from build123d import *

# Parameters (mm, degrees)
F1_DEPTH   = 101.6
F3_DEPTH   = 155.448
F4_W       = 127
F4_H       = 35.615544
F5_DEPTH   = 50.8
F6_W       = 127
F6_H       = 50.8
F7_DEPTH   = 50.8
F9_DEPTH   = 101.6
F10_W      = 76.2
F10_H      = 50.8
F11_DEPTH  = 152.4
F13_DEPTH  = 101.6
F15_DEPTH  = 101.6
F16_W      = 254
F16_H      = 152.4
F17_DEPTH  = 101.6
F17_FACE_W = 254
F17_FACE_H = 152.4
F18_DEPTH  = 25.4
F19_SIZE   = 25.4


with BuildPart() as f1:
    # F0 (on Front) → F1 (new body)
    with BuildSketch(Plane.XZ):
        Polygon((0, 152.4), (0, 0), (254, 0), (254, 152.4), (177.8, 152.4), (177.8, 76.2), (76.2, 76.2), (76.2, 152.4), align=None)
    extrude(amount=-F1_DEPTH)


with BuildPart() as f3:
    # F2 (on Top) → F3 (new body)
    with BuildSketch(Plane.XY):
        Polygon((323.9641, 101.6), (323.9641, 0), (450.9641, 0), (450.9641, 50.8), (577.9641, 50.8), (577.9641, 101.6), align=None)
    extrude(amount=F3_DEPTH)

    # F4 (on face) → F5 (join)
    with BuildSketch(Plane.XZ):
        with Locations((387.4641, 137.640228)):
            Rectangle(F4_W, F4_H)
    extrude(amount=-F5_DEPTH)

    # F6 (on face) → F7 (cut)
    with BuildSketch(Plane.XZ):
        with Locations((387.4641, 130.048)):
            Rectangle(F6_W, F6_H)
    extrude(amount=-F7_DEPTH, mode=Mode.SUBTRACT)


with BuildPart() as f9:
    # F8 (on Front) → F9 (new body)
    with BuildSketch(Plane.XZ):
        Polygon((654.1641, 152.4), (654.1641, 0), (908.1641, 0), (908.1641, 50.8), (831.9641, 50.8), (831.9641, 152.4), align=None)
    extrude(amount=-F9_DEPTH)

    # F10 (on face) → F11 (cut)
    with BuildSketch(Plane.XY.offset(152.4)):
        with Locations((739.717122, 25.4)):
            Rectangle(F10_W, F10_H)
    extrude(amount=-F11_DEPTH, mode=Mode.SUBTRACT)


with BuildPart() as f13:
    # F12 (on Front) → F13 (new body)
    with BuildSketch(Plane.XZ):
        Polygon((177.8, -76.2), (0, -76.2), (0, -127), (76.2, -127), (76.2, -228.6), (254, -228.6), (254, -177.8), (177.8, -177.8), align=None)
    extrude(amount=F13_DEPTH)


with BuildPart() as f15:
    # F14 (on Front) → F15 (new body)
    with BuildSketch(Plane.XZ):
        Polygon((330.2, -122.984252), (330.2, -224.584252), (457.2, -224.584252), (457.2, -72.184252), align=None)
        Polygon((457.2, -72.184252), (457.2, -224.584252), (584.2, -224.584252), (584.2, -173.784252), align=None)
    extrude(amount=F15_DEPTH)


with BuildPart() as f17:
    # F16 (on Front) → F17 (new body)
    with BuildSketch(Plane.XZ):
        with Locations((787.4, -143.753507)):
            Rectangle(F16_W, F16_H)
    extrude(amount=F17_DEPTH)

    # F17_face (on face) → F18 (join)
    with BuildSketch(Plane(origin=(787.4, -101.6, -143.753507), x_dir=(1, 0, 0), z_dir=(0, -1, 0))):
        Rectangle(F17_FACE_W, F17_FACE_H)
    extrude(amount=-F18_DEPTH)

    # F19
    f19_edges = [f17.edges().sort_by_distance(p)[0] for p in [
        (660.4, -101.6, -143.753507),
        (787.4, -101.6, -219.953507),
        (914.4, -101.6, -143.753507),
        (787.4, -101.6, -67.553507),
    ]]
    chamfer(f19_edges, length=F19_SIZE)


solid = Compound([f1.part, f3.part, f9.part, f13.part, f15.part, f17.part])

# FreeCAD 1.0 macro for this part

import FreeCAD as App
import Part
import Sketcher
Q = App.Units.Quantity


def edges_at(feature, points):
    """Names of the edges that pass closest to the given points."""
    edges = feature.Shape.Edges
    near = lambda p: min(range(len(edges)), key=lambda i: edges[i].distToShape(Part.Vertex(*p))[0])
    return sorted({f"Edge{near(p) + 1}" for p in points})

doc = App.newDocument("Part")
body = doc.addObject("PartDesign::Body", "Body")

sketch1 = body.newObject("Sketcher::SketchObject", "Sketch")
sketch1.AttachmentSupport = (doc.getObject("XZ_Plane"), [""])
sketch1.MapMode = "FlatFace"
sketch1.addGeometry([
    Part.LineSegment(App.Vector(0, 152, 0), App.Vector(0, 0, 0)),
    Part.LineSegment(App.Vector(0, 0, 0), App.Vector(254, 0, 0)),
    Part.LineSegment(App.Vector(254, 0, 0), App.Vector(254, 152, 0)),
    Part.LineSegment(App.Vector(254, 152, 0), App.Vector(178, 152, 0)),
    Part.LineSegment(App.Vector(178, 152, 0), App.Vector(178, 76, 0)),
    Part.LineSegment(App.Vector(178, 76, 0), App.Vector(76, 76, 0)),
    Part.LineSegment(App.Vector(76, 76, 0), App.Vector(76, 152, 0)),
    Part.LineSegment(App.Vector(76, 152, 0), App.Vector(0, 152, 0)),
], False)
sketch1.addConstraint([
    Sketcher.Constraint("Coincident", 0, 2, 1, 1),
    Sketcher.Constraint("Coincident", 1, 2, 2, 1),
    Sketcher.Constraint("Coincident", 2, 2, 3, 1),
    Sketcher.Constraint("Coincident", 3, 2, 4, 1),
    Sketcher.Constraint("Coincident", 4, 2, 5, 1),
    Sketcher.Constraint("Coincident", 5, 2, 6, 1),
    Sketcher.Constraint("Coincident", 6, 2, 7, 1),
    Sketcher.Constraint("Coincident", 7, 2, 0, 1),
    Sketcher.Constraint("Vertical", 0),
    Sketcher.Constraint("Horizontal", 1),
    Sketcher.Constraint("Vertical", 2),
    Sketcher.Constraint("Horizontal", 3),
    Sketcher.Constraint("Vertical", 4),
    Sketcher.Constraint("Horizontal", 5),
    Sketcher.Constraint("Vertical", 6),
    Sketcher.Constraint("Horizontal", 7),
    Sketcher.Constraint("Coincident", 0, 2, -1, 1),
    Sketcher.Constraint("Horizontal", 3, 2, 6, 2),
    Sketcher.Constraint("Equal", 3, 7),
    Sketcher.Constraint("Equal", 7, 4),
    Sketcher.Constraint("DistanceX", 1, 1, 1, 2, Q("10 in")),
    Sketcher.Constraint("DistanceX", 3, 2, 3, 1, Q("3 in")),
    Sketcher.Constraint("DistanceY", 0, 2, 0, 1, Q("6 in")),
])
pad1 = body.newObject("PartDesign::Pad", "Pad")
pad1.Profile = sketch1
pad1.Length = Q("4 in")
pad1.Reversed = True
body2 = doc.addObject("PartDesign::Body", "Body001")

sketch2 = body2.newObject("Sketcher::SketchObject", "Sketch001")
sketch2.AttachmentSupport = (doc.getObject("XY_Plane001"), [""])
sketch2.MapMode = "FlatFace"
sketch2.addGeometry([
    Part.LineSegment(App.Vector(324, 102, 0), App.Vector(324, 0, 0)),
    Part.LineSegment(App.Vector(324, 0, 0), App.Vector(451, 0, 0)),
    Part.LineSegment(App.Vector(451, 0, 0), App.Vector(451, 51, 0)),
    Part.LineSegment(App.Vector(451, 51, 0), App.Vector(578, 51, 0)),
    Part.LineSegment(App.Vector(578, 51, 0), App.Vector(578, 102, 0)),
    Part.LineSegment(App.Vector(578, 102, 0), App.Vector(324, 102, 0)),
], False)
sketch2.addConstraint([
    Sketcher.Constraint("Coincident", 0, 2, 1, 1),
    Sketcher.Constraint("Coincident", 1, 2, 2, 1),
    Sketcher.Constraint("Coincident", 2, 2, 3, 1),
    Sketcher.Constraint("Coincident", 3, 2, 4, 1),
    Sketcher.Constraint("Coincident", 4, 2, 5, 1),
    Sketcher.Constraint("Coincident", 5, 2, 0, 1),
    Sketcher.Constraint("Vertical", 0),
    Sketcher.Constraint("Horizontal", 1),
    Sketcher.Constraint("Vertical", 2),
    Sketcher.Constraint("Horizontal", 3),
    Sketcher.Constraint("Vertical", 4),
    Sketcher.Constraint("Horizontal", 5),
    Sketcher.Constraint("PointOnObject", 0, 2, -1),
    Sketcher.Constraint("Equal", 1, 3),
    Sketcher.Constraint("Equal", 2, 4),
    Sketcher.Constraint("DistanceX", 1, 1, 1, 2, Q("5 in")),
    Sketcher.Constraint("DistanceY", 0, 2, 0, 1, Q("4 in")),
    Sketcher.Constraint("DistanceX", -1, 1, 0, 2, Q("323.9641 mm")),
])
pad2 = body2.newObject("PartDesign::Pad", "Pad001")
pad2.Profile = sketch2
pad2.Length = Q("6.12 in")

sketch3 = body2.newObject("Sketcher::SketchObject", "Sketch002")
sketch3.AttachmentSupport = (doc.getObject("XZ_Plane001"), [""])
sketch3.MapMode = "FlatFace"
sketch3.addGeometry([
    Part.LineSegment(App.Vector(324, 155, 0), App.Vector(324, 120, 0)),
    Part.LineSegment(App.Vector(324, 120, 0), App.Vector(451, 120, 0)),
    Part.LineSegment(App.Vector(451, 120, 0), App.Vector(451, 155, 0)),
    Part.LineSegment(App.Vector(451, 155, 0), App.Vector(324, 155, 0)),
], False)
sketch3.addConstraint([
    Sketcher.Constraint("Coincident", 0, 2, 1, 1),
    Sketcher.Constraint("Coincident", 1, 2, 2, 1),
    Sketcher.Constraint("Coincident", 2, 2, 3, 1),
    Sketcher.Constraint("Coincident", 3, 2, 0, 1),
    Sketcher.Constraint("Vertical", 0),
    Sketcher.Constraint("Horizontal", 1),
    Sketcher.Constraint("Vertical", 2),
    Sketcher.Constraint("Horizontal", 3),
    Sketcher.Constraint("DistanceX", 1, 1, 1, 2, Q("5 in")),
    Sketcher.Constraint("DistanceY", -1, 1, 2, 2, Q("6.12 in")),
    Sketcher.Constraint("DistanceX", -1, 1, 0, 2, Q("323.9641 mm")),
    Sketcher.Constraint("DistanceY", 0, 2, 0, 1, Q("35.615544 mm")),
])
pad3 = body2.newObject("PartDesign::Pad", "Pad002")
pad3.Profile = sketch3
pad3.Length = Q("2 in")
pad3.Reversed = True

sketch4 = body2.newObject("Sketcher::SketchObject", "Sketch003")
sketch4.AttachmentSupport = (doc.getObject("XZ_Plane001"), [""])
sketch4.MapMode = "FlatFace"
sketch4.addGeometry([
    Part.LineSegment(App.Vector(324, 155, 0), App.Vector(324, 105, 0)),
    Part.LineSegment(App.Vector(324, 105, 0), App.Vector(451, 105, 0)),
    Part.LineSegment(App.Vector(451, 105, 0), App.Vector(451, 155, 0)),
    Part.LineSegment(App.Vector(451, 155, 0), App.Vector(324, 155, 0)),
], False)
sketch4.addConstraint([
    Sketcher.Constraint("Coincident", 0, 2, 1, 1),
    Sketcher.Constraint("Coincident", 1, 2, 2, 1),
    Sketcher.Constraint("Coincident", 2, 2, 3, 1),
    Sketcher.Constraint("Coincident", 3, 2, 0, 1),
    Sketcher.Constraint("Vertical", 0),
    Sketcher.Constraint("Horizontal", 1),
    Sketcher.Constraint("Vertical", 2),
    Sketcher.Constraint("Horizontal", 3),
    Sketcher.Constraint("DistanceX", 1, 1, 1, 2, Q("5 in")),
    Sketcher.Constraint("DistanceY", 0, 2, 0, 1, Q("2 in")),
    Sketcher.Constraint("DistanceY", -1, 1, 0, 2, Q("4.12 in")),
    Sketcher.Constraint("DistanceX", -1, 1, 0, 2, Q("323.9641 mm")),
])
pocket1 = body2.newObject("PartDesign::Pocket", "Pocket")
pocket1.Profile = sketch4
pocket1.Length = Q("2 in")
body3 = doc.addObject("PartDesign::Body", "Body002")

sketch5 = body3.newObject("Sketcher::SketchObject", "Sketch004")
sketch5.AttachmentSupport = (doc.getObject("XZ_Plane002"), [""])
sketch5.MapMode = "FlatFace"
sketch5.addGeometry([
    Part.LineSegment(App.Vector(654, 152, 0), App.Vector(654, 0, 0)),
    Part.LineSegment(App.Vector(654, 0, 0), App.Vector(908, 0, 0)),
    Part.LineSegment(App.Vector(908, 0, 0), App.Vector(908, 51, 0)),
    Part.LineSegment(App.Vector(908, 51, 0), App.Vector(832, 51, 0)),
    Part.LineSegment(App.Vector(832, 51, 0), App.Vector(832, 152, 0)),
    Part.LineSegment(App.Vector(832, 152, 0), App.Vector(654, 152, 0)),
], False)
sketch5.addConstraint([
    Sketcher.Constraint("Coincident", 0, 2, 1, 1),
    Sketcher.Constraint("Coincident", 1, 2, 2, 1),
    Sketcher.Constraint("Coincident", 2, 2, 3, 1),
    Sketcher.Constraint("Coincident", 3, 2, 4, 1),
    Sketcher.Constraint("Coincident", 4, 2, 5, 1),
    Sketcher.Constraint("Coincident", 5, 2, 0, 1),
    Sketcher.Constraint("Vertical", 0),
    Sketcher.Constraint("Horizontal", 1),
    Sketcher.Constraint("Vertical", 2),
    Sketcher.Constraint("Horizontal", 3),
    Sketcher.Constraint("Vertical", 4),
    Sketcher.Constraint("Horizontal", 5),
    Sketcher.Constraint("PointOnObject", 0, 2, -1),
    Sketcher.Constraint("DistanceX", 1, 1, 1, 2, Q("10 in")),
    Sketcher.Constraint("DistanceX", 3, 2, 3, 1, Q("3 in")),
    Sketcher.Constraint("DistanceY", 0, 2, 0, 1, Q("6 in")),
    Sketcher.Constraint("DistanceY", 2, 1, 2, 2, Q("2 in")),
    Sketcher.Constraint("DistanceX", -1, 1, 0, 2, Q("654.1641 mm")),
])
pad4 = body3.newObject("PartDesign::Pad", "Pad003")
pad4.Profile = sketch5
pad4.Length = Q("4 in")
pad4.Reversed = True

sketch6 = body3.newObject("Sketcher::SketchObject", "Sketch005")
sketch6.AttachmentSupport = (doc.getObject("XY_Plane002"), [""])
sketch6.MapMode = "FlatFace"
sketch6.AttachmentOffset = App.Placement(App.Vector(0, 0, 6 * 25.4), App.Rotation())
sketch6.addGeometry([
    Part.LineSegment(App.Vector(702, 51, 0), App.Vector(702, 0, 0)),
    Part.LineSegment(App.Vector(702, 0, 0), App.Vector(778, 0, 0)),
    Part.LineSegment(App.Vector(778, 0, 0), App.Vector(778, 51, 0)),
    Part.LineSegment(App.Vector(778, 51, 0), App.Vector(702, 51, 0)),
], False)
sketch6.addConstraint([
    Sketcher.Constraint("Coincident", 0, 2, 1, 1),
    Sketcher.Constraint("Coincident", 1, 2, 2, 1),
    Sketcher.Constraint("Coincident", 2, 2, 3, 1),
    Sketcher.Constraint("Coincident", 3, 2, 0, 1),
    Sketcher.Constraint("Vertical", 0),
    Sketcher.Constraint("Horizontal", 1),
    Sketcher.Constraint("Vertical", 2),
    Sketcher.Constraint("Horizontal", 3),
    Sketcher.Constraint("PointOnObject", 0, 2, -1),
    Sketcher.Constraint("DistanceX", 1, 1, 1, 2, Q("3 in")),
    Sketcher.Constraint("DistanceY", 0, 2, 0, 1, Q("2 in")),
    Sketcher.Constraint("DistanceX", -1, 1, 0, 2, Q("701.617122 mm")),
])
pocket2 = body3.newObject("PartDesign::Pocket", "Pocket001")
pocket2.Profile = sketch6
pocket2.Length = Q("6 in")
body4 = doc.addObject("PartDesign::Body", "Body003")

sketch7 = body4.newObject("Sketcher::SketchObject", "Sketch006")
sketch7.AttachmentSupport = (doc.getObject("XZ_Plane003"), [""])
sketch7.MapMode = "FlatFace"
sketch7.addGeometry([
    Part.LineSegment(App.Vector(178, -76, 0), App.Vector(0, -76, 0)),
    Part.LineSegment(App.Vector(0, -76, 0), App.Vector(0, -127, 0)),
    Part.LineSegment(App.Vector(0, -127, 0), App.Vector(76, -127, 0)),
    Part.LineSegment(App.Vector(76, -127, 0), App.Vector(76, -229, 0)),
    Part.LineSegment(App.Vector(76, -229, 0), App.Vector(254, -229, 0)),
    Part.LineSegment(App.Vector(254, -229, 0), App.Vector(254, -178, 0)),
    Part.LineSegment(App.Vector(254, -178, 0), App.Vector(178, -178, 0)),
    Part.LineSegment(App.Vector(178, -178, 0), App.Vector(178, -76, 0)),
], False)
sketch7.addConstraint([
    Sketcher.Constraint("Coincident", 0, 2, 1, 1),
    Sketcher.Constraint("Coincident", 1, 2, 2, 1),
    Sketcher.Constraint("Coincident", 2, 2, 3, 1),
    Sketcher.Constraint("Coincident", 3, 2, 4, 1),
    Sketcher.Constraint("Coincident", 4, 2, 5, 1),
    Sketcher.Constraint("Coincident", 5, 2, 6, 1),
    Sketcher.Constraint("Coincident", 6, 2, 7, 1),
    Sketcher.Constraint("Coincident", 7, 2, 0, 1),
    Sketcher.Constraint("Horizontal", 0),
    Sketcher.Constraint("Vertical", 1),
    Sketcher.Constraint("Horizontal", 2),
    Sketcher.Constraint("Vertical", 3),
    Sketcher.Constraint("Horizontal", 4),
    Sketcher.Constraint("Vertical", 5),
    Sketcher.Constraint("Horizontal", 6),
    Sketcher.Constraint("Vertical", 7),
    Sketcher.Constraint("PointOnObject", 0, 2, -2),
    Sketcher.Constraint("Equal", 0, 4),
    Sketcher.Constraint("Equal", 1, 5),
    Sketcher.Constraint("DistanceX", 0, 2, 0, 1, Q("7 in")),
    Sketcher.Constraint("DistanceX", 2, 1, 2, 2, Q("3 in")),
    Sketcher.Constraint("DistanceY", 1, 2, 1, 1, Q("2 in")),
    Sketcher.Constraint("DistanceY", 3, 2, 3, 1, Q("4 in")),
    Sketcher.Constraint("DistanceY", 0, 2, -1, 1, Q("3 in")),
])
pad5 = body4.newObject("PartDesign::Pad", "Pad004")
pad5.Profile = sketch7
pad5.Length = Q("4 in")
body5 = doc.addObject("PartDesign::Body", "Body004")

sketch8 = body5.newObject("Sketcher::SketchObject", "Sketch007")
sketch8.AttachmentSupport = (doc.getObject("XZ_Plane004"), [""])
sketch8.MapMode = "FlatFace"
sketch8.addGeometry([
    Part.LineSegment(App.Vector(330, -123, 0), App.Vector(330, -225, 0)),
    Part.LineSegment(App.Vector(330, -225, 0), App.Vector(584, -225, 0)),
    Part.LineSegment(App.Vector(584, -225, 0), App.Vector(584, -174, 0)),
    Part.LineSegment(App.Vector(584, -174, 0), App.Vector(457, -72, 0)),
    Part.LineSegment(App.Vector(457, -72, 0), App.Vector(330, -123, 0)),
], False)
sketch8.addConstraint([
    Sketcher.Constraint("Coincident", 0, 2, 1, 1),
    Sketcher.Constraint("Coincident", 1, 2, 2, 1),
    Sketcher.Constraint("Coincident", 2, 2, 3, 1),
    Sketcher.Constraint("Coincident", 3, 2, 4, 1),
    Sketcher.Constraint("Coincident", 4, 2, 0, 1),
    Sketcher.Constraint("Vertical", 0),
    Sketcher.Constraint("Horizontal", 1),
    Sketcher.Constraint("Vertical", 2),
    Sketcher.Constraint("DistanceX", 1, 1, 1, 2, Q("10 in")),
    Sketcher.Constraint("DistanceY", 0, 2, 0, 1, Q("4 in")),
    Sketcher.Constraint("DistanceY", 2, 1, 2, 2, Q("2 in")),
    Sketcher.Constraint("DistanceX", -1, 1, 0, 2, Q("13 in")),
    Sketcher.Constraint("DistanceX", -1, 1, 3, 2, Q("18 in")),
    Sketcher.Constraint("DistanceY", 2, 2, 3, 2, Q("4 in")),
    Sketcher.Constraint("DistanceY", 0, 2, -1, 1, Q("224.584252 mm")),
])
pad6 = body5.newObject("PartDesign::Pad", "Pad005")
pad6.Profile = sketch8
pad6.Length = Q("4 in")
body6 = doc.addObject("PartDesign::Body", "Body005")

sketch9 = body6.newObject("Sketcher::SketchObject", "Sketch008")
sketch9.AttachmentSupport = (doc.getObject("XZ_Plane005"), [""])
sketch9.MapMode = "FlatFace"
sketch9.addGeometry([
    Part.LineSegment(App.Vector(660, -68, 0), App.Vector(660, -220, 0)),
    Part.LineSegment(App.Vector(660, -220, 0), App.Vector(914, -220, 0)),
    Part.LineSegment(App.Vector(914, -220, 0), App.Vector(914, -68, 0)),
    Part.LineSegment(App.Vector(914, -68, 0), App.Vector(660, -68, 0)),
], False)
sketch9.addConstraint([
    Sketcher.Constraint("Coincident", 0, 2, 1, 1),
    Sketcher.Constraint("Coincident", 1, 2, 2, 1),
    Sketcher.Constraint("Coincident", 2, 2, 3, 1),
    Sketcher.Constraint("Coincident", 3, 2, 0, 1),
    Sketcher.Constraint("Vertical", 0),
    Sketcher.Constraint("Horizontal", 1),
    Sketcher.Constraint("Vertical", 2),
    Sketcher.Constraint("Horizontal", 3),
    Sketcher.Constraint("DistanceX", 1, 1, 1, 2, Q("10 in")),
    Sketcher.Constraint("DistanceY", 0, 2, 0, 1, Q("6 in")),
    Sketcher.Constraint("DistanceX", -1, 1, 0, 2, Q("26 in")),
    Sketcher.Constraint("DistanceY", 0, 2, -1, 1, Q("219.953507 mm")),
])
pad7 = body6.newObject("PartDesign::Pad", "Pad006")
pad7.Profile = sketch9
pad7.Length = Q("4 in")

sketch10 = body6.newObject("Sketcher::SketchObject", "Sketch009")
sketch10.AttachmentSupport = (doc.getObject("XZ_Plane005"), [""])
sketch10.MapMode = "FlatFace"
sketch10.AttachmentOffset = App.Placement(App.Vector(0, 0, 4 * 25.4), App.Rotation())
sketch10.addGeometry([
    Part.LineSegment(App.Vector(660, -68, 0), App.Vector(660, -220, 0)),
    Part.LineSegment(App.Vector(660, -220, 0), App.Vector(914, -220, 0)),
    Part.LineSegment(App.Vector(914, -220, 0), App.Vector(914, -68, 0)),
    Part.LineSegment(App.Vector(914, -68, 0), App.Vector(660, -68, 0)),
], False)
sketch10.addConstraint([
    Sketcher.Constraint("Coincident", 0, 2, 1, 1),
    Sketcher.Constraint("Coincident", 1, 2, 2, 1),
    Sketcher.Constraint("Coincident", 2, 2, 3, 1),
    Sketcher.Constraint("Coincident", 3, 2, 0, 1),
    Sketcher.Constraint("Vertical", 0),
    Sketcher.Constraint("Horizontal", 1),
    Sketcher.Constraint("Vertical", 2),
    Sketcher.Constraint("Horizontal", 3),
    Sketcher.Constraint("DistanceX", 1, 1, 1, 2, Q("10 in")),
    Sketcher.Constraint("DistanceY", 0, 2, 0, 1, Q("6 in")),
    Sketcher.Constraint("DistanceX", -1, 1, 0, 2, Q("26 in")),
    Sketcher.Constraint("DistanceY", 0, 2, -1, 1, Q("219.953507 mm")),
])
pad8 = body6.newObject("PartDesign::Pad", "Pad007")
pad8.Profile = sketch10
pad8.Length = Q("1 in")
pad8.Reversed = True
doc.recompute()

chamfer = body6.newObject("PartDesign::Chamfer", "Chamfer")
chamfer.Base = (pad8, edges_at(pad8, [
    (660.4, -101.6, -143.754),
    (787.4, -101.6, -219.954),
    (914.4, -101.6, -143.754),
    (787.4, -101.6, -67.554),
]))
chamfer.Size = Q("1 in")

doc.recompute()
